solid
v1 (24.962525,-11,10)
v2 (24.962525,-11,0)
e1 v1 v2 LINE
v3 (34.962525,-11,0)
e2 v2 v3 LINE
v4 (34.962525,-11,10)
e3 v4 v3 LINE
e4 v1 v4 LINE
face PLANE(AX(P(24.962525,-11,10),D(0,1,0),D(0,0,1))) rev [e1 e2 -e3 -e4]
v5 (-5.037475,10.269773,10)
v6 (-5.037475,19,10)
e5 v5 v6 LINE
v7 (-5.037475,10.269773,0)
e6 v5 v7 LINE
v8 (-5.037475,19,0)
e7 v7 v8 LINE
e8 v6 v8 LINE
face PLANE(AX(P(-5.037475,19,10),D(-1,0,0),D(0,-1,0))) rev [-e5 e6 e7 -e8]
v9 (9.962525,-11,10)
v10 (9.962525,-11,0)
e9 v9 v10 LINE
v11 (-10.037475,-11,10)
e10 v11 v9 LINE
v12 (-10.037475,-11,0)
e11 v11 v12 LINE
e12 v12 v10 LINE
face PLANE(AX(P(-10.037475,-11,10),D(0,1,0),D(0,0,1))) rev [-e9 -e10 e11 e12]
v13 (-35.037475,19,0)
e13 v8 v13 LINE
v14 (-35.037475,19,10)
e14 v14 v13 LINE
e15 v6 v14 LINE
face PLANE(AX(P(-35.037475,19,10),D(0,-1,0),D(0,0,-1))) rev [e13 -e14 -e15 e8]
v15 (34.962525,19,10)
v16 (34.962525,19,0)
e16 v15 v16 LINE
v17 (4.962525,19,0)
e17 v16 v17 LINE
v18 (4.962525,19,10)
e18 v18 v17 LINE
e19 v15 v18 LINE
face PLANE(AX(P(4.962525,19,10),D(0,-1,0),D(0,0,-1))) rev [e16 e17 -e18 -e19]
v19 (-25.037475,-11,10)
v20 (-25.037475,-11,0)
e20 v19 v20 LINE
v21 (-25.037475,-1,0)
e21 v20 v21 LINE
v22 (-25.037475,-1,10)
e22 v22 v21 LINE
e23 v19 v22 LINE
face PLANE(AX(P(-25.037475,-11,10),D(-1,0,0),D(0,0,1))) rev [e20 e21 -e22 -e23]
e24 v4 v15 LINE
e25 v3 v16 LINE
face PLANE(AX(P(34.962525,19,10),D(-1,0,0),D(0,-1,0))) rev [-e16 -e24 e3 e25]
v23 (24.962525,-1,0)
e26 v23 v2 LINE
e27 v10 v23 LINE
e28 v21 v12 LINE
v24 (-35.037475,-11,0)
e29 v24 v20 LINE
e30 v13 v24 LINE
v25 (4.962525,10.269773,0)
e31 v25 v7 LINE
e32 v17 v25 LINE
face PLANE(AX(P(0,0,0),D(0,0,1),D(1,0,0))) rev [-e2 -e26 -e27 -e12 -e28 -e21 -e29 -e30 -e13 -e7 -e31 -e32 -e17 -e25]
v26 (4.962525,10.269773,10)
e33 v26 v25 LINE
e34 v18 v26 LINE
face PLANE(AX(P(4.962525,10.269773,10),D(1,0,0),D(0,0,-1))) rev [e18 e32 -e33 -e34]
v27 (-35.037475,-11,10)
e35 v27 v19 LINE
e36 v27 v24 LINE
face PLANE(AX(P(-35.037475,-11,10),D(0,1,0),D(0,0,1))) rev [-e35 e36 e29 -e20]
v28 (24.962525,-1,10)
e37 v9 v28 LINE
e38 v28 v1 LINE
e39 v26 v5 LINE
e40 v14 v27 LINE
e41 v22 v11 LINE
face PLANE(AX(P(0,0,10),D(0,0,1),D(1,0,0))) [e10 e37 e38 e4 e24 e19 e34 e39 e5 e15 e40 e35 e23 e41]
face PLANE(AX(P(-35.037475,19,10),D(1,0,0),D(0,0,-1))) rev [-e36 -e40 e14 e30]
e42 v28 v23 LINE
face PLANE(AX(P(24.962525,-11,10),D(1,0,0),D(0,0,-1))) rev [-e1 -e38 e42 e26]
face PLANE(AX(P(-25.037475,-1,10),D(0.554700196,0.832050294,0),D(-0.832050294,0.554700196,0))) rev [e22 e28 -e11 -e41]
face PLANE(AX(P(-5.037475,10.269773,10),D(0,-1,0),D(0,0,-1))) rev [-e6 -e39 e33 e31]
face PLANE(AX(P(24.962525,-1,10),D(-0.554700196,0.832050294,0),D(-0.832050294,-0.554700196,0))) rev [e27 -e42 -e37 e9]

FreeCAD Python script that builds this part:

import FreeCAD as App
import Part
import Sketcher

V = App.Vector
Q = App.Units.Quantity

doc = App.newDocument("Part")
params = doc.addObject("Spreadsheet::Sheet", "Params")
for row, (alias, value) in enumerate([
    ("sketch1_width", "20 mm"),
    ("sketch1_width2", "10 mm"),
    ("sketch1_width3", "30 mm"),
    ("pad1_length", "10 mm"),
], start=1):
    params.set(f"A{row}", alias)
    params.set(f"B{row}", "=" + value)
    params.setAlias(f"B{row}", alias)

body = doc.addObject("PartDesign::Body", "Body")

# Sketch on XY plane
sketch1 = body.newObject("Sketcher::SketchObject", "Sketch")
sketch1.AttachmentSupport = (doc.getObject("XY_Plane"), [""])
sketch1.MapMode = "FlatFace"
sketch1.addGeometry([
    Part.LineSegment(V(-25, -11, 0), V(-25, -1, 0)),  # 0
    Part.LineSegment(V(-25, -1, 0), V(-10, -11, 0)),  # 1
    Part.LineSegment(V(-10, -11, 0), V(10, -11, 0)),  # 2
    Part.LineSegment(V(10, -11, 0), V(25, -1, 0)),  # 3
    Part.LineSegment(V(25, -1, 0), V(25, -11, 0)),  # 4
    Part.LineSegment(V(25, -11, 0), V(35, -11, 0)),  # 5
    Part.LineSegment(V(35, -11, 0), V(35, 19, 0)),  # 6
    Part.LineSegment(V(35, 19, 0), V(5, 19, 0)),  # 7
    Part.LineSegment(V(5, 19, 0), V(5, 10, 0)),  # 8
    Part.LineSegment(V(5, 10, 0), V(-5, 10, 0)),  # 9
    Part.LineSegment(V(-5, 10, 0), V(-5, 19, 0)),  # 10
    Part.LineSegment(V(-5, 19, 0), V(-35, 19, 0)),  # 11
    Part.LineSegment(V(-35, 19, 0), V(-35, -11, 0)),  # 12
    Part.LineSegment(V(-35, -11, 0), V(-25, -11, 0)),  # 13
], False)
sketch1.addConstraint([
    Sketcher.Constraint("Coincident", 0, 2, 1, 1),
    Sketcher.Constraint("Coincident", 1, 2, 2, 1),
    Sketcher.Constraint("Coincident", 2, 2, 3, 1),
    Sketcher.Constraint("Coincident", 3, 2, 4, 1),
    Sketcher.Constraint("Coincident", 4, 2, 5, 1),
    Sketcher.Constraint("Coincident", 5, 2, 6, 1),
    Sketcher.Constraint("Coincident", 6, 2, 7, 1),
    Sketcher.Constraint("Coincident", 7, 2, 8, 1),
    Sketcher.Constraint("Coincident", 8, 2, 9, 1),
    Sketcher.Constraint("Coincident", 9, 2, 10, 1),
    Sketcher.Constraint("Coincident", 10, 2, 11, 1),
    Sketcher.Constraint("Coincident", 11, 2, 12, 1),
    Sketcher.Constraint("Coincident", 12, 2, 13, 1),
    Sketcher.Constraint("Coincident", 13, 2, 0, 1),
    Sketcher.Constraint("Vertical", 0),
    Sketcher.Constraint("Horizontal", 2),
    Sketcher.Constraint("Vertical", 4),
    Sketcher.Constraint("Horizontal", 5),
    Sketcher.Constraint("Vertical", 6),
    Sketcher.Constraint("Horizontal", 7),
    Sketcher.Constraint("Vertical", 8),
    Sketcher.Constraint("Horizontal", 9),
    Sketcher.Constraint("Vertical", 10),
    Sketcher.Constraint("Horizontal", 11),
    Sketcher.Constraint("Vertical", 12),
    Sketcher.Constraint("Horizontal", 13),
    Sketcher.Constraint("Horizontal", 0, 2, 3, 2),
    Sketcher.Constraint("Horizontal", 2, 2, 4, 2),
    Sketcher.Constraint("Horizontal", 7, 2, 10, 2),
    Sketcher.Constraint("Horizontal", 5, 2, 12, 2),
    Sketcher.Constraint("Equal", 5, 9),
    Sketcher.Constraint("Equal", 7, 11),
    Sketcher.Constraint("Equal", 9, 13),
    Sketcher.Constraint("Equal", 13, 0),
    Sketcher.Constraint("Equal", 11, 6),
    Sketcher.Constraint("Equal", 1, 3),
    Sketcher.Constraint("DistanceX", 2, 1, 2, 2, Q("20 mm")),
    Sketcher.Constraint("DistanceX", 5, 1, 5, 2, Q("10 mm")),
    Sketcher.Constraint("DistanceX", 7, 2, 7, 1, Q("30 mm")),
    Sketcher.Constraint("DistanceY", 0, 2, -1, 1, Q("1 mm")),
    Sketcher.Constraint("DistanceY", 8, 2, 8, 1, Q("8.730227 mm")),
    Sketcher.Constraint("DistanceX", 0, 2, -1, 1, Q("25.037475 mm")),
])
sketch1.setExpression("Constraints[36]", "Params.sketch1_width")
sketch1.setExpression("Constraints[37]", "Params.sketch1_width2")
sketch1.setExpression("Constraints[38]", "Params.sketch1_width3")
pad1 = body.newObject("PartDesign::Pad", "Pad")
pad1.Profile = sketch1
pad1.setExpression("Length", "Params.pad1_length")

doc.recompute()
